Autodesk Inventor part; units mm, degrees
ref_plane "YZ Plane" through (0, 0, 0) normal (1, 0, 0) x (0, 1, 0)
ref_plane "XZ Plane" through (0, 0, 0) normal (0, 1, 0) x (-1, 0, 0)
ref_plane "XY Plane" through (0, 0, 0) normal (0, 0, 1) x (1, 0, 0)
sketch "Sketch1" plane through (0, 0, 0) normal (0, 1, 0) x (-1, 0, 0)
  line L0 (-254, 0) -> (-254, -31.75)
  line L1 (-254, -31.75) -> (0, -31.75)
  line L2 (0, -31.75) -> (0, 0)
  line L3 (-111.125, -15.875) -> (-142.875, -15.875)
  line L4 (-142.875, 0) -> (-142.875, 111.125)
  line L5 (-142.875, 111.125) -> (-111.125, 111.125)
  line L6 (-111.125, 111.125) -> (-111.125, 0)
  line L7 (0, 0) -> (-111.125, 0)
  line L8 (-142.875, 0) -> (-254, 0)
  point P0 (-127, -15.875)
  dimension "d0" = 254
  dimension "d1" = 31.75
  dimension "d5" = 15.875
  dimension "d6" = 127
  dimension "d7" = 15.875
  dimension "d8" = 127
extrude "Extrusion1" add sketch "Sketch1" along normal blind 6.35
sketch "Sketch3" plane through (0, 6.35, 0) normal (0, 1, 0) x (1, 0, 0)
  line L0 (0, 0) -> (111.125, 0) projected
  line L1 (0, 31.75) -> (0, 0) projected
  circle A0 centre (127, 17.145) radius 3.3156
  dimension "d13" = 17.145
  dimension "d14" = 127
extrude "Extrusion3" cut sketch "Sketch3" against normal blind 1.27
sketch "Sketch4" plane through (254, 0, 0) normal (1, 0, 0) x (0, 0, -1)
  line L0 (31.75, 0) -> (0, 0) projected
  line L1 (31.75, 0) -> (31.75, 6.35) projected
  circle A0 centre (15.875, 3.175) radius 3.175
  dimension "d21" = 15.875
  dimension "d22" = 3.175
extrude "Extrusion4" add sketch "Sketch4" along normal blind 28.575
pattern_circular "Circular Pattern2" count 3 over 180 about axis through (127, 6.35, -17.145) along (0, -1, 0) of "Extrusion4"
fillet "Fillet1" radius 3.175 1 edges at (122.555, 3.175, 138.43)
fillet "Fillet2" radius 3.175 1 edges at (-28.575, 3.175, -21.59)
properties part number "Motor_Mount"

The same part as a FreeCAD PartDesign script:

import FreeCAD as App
import Part
import Sketcher
Q = App.Units.Quantity


def edges_at(feature, points):
    """Names of the edges that pass closest to the given points."""
    edges = feature.Shape.Edges
    near = lambda p: min(range(len(edges)), key=lambda i: edges[i].distToShape(Part.Vertex(*p))[0])
    return sorted({f"Edge{near(p) + 1}" for p in points})

doc = App.newDocument("Part")
params = doc.addObject("Spreadsheet::Sheet", "Params")
for row, (alias, value) in enumerate([
    ("sketch1_width", "10 in"),
    ("sketch1_width2", "1.25 in"),
    ("pad1_length", "0.25 in"),
    ("pocket1_length", "0.05 in"),
    ("sketch3_diameter", "0.25 in"),
    ("pad2_length", "1.125 in"),
    ("fillet_radius", "0.125 in"),
    ("fillet2_radius", "0.125 in"),
], start=1):
    params.set(f"A{row}", alias)
    params.set(f"B{row}", "=" + value)
    params.setAlias(f"B{row}", alias)

body = doc.addObject("PartDesign::Body", "Body")

# Sketch on XZ plane
sketch1 = body.newObject("Sketcher::SketchObject", "Sketch")
sketch1.AttachmentSupport = (doc.getObject("XZ_Plane"), [""])
sketch1.MapMode = "FlatFace"
sketch1.addGeometry(Part.LineSegment(App.Vector(143, 0, 0), App.Vector(254, 0, 0)), False)
sketch1.addGeometry(Part.LineSegment(App.Vector(254, 0, 0), App.Vector(254, -32, 0)), False)
sketch1.addGeometry(Part.LineSegment(App.Vector(254, -32, 0), App.Vector(0, -32, 0)), False)
sketch1.addGeometry(Part.LineSegment(App.Vector(0, -32, 0), App.Vector(0, 0, 0)), False)
sketch1.addGeometry(Part.LineSegment(App.Vector(0, 0, 0), App.Vector(111, 0, 0)), False)
sketch1.addGeometry(Part.LineSegment(App.Vector(111, 0, 0), App.Vector(111, 111, 0)), False)
sketch1.addGeometry(Part.LineSegment(App.Vector(111, 111, 0), App.Vector(143, 111, 0)), False)
sketch1.addGeometry(Part.LineSegment(App.Vector(143, 111, 0), App.Vector(143, 0, 0)), False)
sketch1.addConstraint(Sketcher.Constraint("Coincident", 0, 2, 1, 1))
sketch1.addConstraint(Sketcher.Constraint("Coincident", 1, 2, 2, 1))
sketch1.addConstraint(Sketcher.Constraint("Coincident", 2, 2, 3, 1))
sketch1.addConstraint(Sketcher.Constraint("Coincident", 3, 2, 4, 1))
sketch1.addConstraint(Sketcher.Constraint("Coincident", 4, 2, 5, 1))
sketch1.addConstraint(Sketcher.Constraint("Coincident", 5, 2, 6, 1))
sketch1.addConstraint(Sketcher.Constraint("Coincident", 6, 2, 7, 1))
sketch1.addConstraint(Sketcher.Constraint("Coincident", 7, 2, 0, 1))
sketch1.addConstraint(Sketcher.Constraint("Horizontal", 0))
sketch1.addConstraint(Sketcher.Constraint("Vertical", 1))
sketch1.addConstraint(Sketcher.Constraint("Horizontal", 2))
sketch1.addConstraint(Sketcher.Constraint("Vertical", 3))
sketch1.addConstraint(Sketcher.Constraint("Horizontal", 4))
sketch1.addConstraint(Sketcher.Constraint("Vertical", 5))
sketch1.addConstraint(Sketcher.Constraint("Horizontal", 6))
sketch1.addConstraint(Sketcher.Constraint("Vertical", 7))
sketch1.addConstraint(Sketcher.Constraint("Coincident", 3, 2, -1, 1))
sketch1.addConstraint(Sketcher.Constraint("PointOnObject", 0, 2, -1))
sketch1.addConstraint(Sketcher.Constraint("Equal", 0, 4))
sketch1.addConstraint(Sketcher.Constraint("Equal", 6, 1))
sketch1.addConstraint(Sketcher.Constraint("Equal", 4, 5))
sketch1.addConstraint(Sketcher.Constraint("DistanceX", 2, 2, 2, 1, Q("10 in")))
sketch1.addConstraint(Sketcher.Constraint("DistanceX", 6, 1, 6, 2, Q("1.25 in")))
sketch1.setExpression("Constraints[21]", "Params.sketch1_width")
sketch1.setExpression("Constraints[22]", "Params.sketch1_width2")
pad1 = body.newObject("PartDesign::Pad", "Pad")
pad1.Profile = sketch1
pad1.setExpression("Length", "Params.pad1_length")
pad1.Reversed = True

# Sketch on XZ plane
sketch2 = body.newObject("Sketcher::SketchObject", "Sketch001")
sketch2.AttachmentSupport = (doc.getObject("XZ_Plane"), [""])
sketch2.MapMode = "FlatFace"
sketch2.AttachmentOffset = App.Placement(App.Vector(0, 0, -0.25 * 25.4), App.Rotation())
sketch2.addGeometry(Part.Circle(App.Vector(127, -17.1, 0), App.Vector(0, 0, 1), 3.3), False)
sketch2.addConstraint(Sketcher.Constraint("DistanceX", -1, 1, 0, 3, Q("5 in")))
sketch2.addConstraint(Sketcher.Constraint("DistanceY", 0, 3, -1, 1, Q("0.675 in")))
sketch2.addConstraint(Sketcher.Constraint("Diameter", 0, Q("6.6312 mm")))
pocket1 = body.newObject("PartDesign::Pocket", "Pocket")
pocket1.Profile = sketch2
pocket1.setExpression("Length", "Params.pocket1_length")
pocket1.Reversed = True

# Sketch on YZ plane
sketch3 = body.newObject("Sketcher::SketchObject", "Sketch002")
sketch3.AttachmentSupport = (doc.getObject("YZ_Plane"), [""])
sketch3.MapMode = "FlatFace"
sketch3.AttachmentOffset = App.Placement(App.Vector(0, 0, 10 * 25.4), App.Rotation())
sketch3.addGeometry(Part.Circle(App.Vector(3.2, -15.9, 0), App.Vector(0, 0, 1), 3.2), False)
sketch3.addConstraint(Sketcher.Constraint("Diameter", 0, Q("0.25 in")))
sketch3.addConstraint(Sketcher.Constraint("DistanceX", -1, 1, 0, 3, Q("0.125 in")))
sketch3.addConstraint(Sketcher.Constraint("DistanceY", 0, 3, -1, 1, Q("0.625 in")))
sketch3.setExpression("Constraints[0]", "Params.sketch3_diameter")
pad2 = body.newObject("PartDesign::Pad", "Pad001")
pad2.Profile = sketch3
pad2.setExpression("Length", "Params.pad2_length")
doc.recompute()

datumline = body.newObject("PartDesign::Line", "DatumLine")
datumline.Placement = App.Placement(App.Vector(127, 0, -17.145), App.Rotation(App.Vector(0, 0, 1), App.Vector(0, 1, 0)))
polarpattern = body.newObject("PartDesign::PolarPattern", "PolarPattern")
polarpattern.Originals = [pad2]
polarpattern.Axis = (datumline, [""])
polarpattern.Angle = 180
polarpattern.Occurrences = 3
polarpattern.Reversed = True
body.Tip = polarpattern
doc.recompute()

fillet = body.newObject("PartDesign::Fillet", "Fillet")
fillet.Base = (polarpattern, edges_at(polarpattern, [(122.555, 3.175, 138.43)]))
fillet.setExpression("Radius", "Params.fillet_radius")
doc.recompute()

fillet2 = body.newObject("PartDesign::Fillet", "Fillet001")
fillet2.Base = (fillet, edges_at(fillet, [(-28.575, 3.175, -21.59)]))
fillet2.setExpression("Radius", "Params.fillet2_radius")

doc.recompute()
